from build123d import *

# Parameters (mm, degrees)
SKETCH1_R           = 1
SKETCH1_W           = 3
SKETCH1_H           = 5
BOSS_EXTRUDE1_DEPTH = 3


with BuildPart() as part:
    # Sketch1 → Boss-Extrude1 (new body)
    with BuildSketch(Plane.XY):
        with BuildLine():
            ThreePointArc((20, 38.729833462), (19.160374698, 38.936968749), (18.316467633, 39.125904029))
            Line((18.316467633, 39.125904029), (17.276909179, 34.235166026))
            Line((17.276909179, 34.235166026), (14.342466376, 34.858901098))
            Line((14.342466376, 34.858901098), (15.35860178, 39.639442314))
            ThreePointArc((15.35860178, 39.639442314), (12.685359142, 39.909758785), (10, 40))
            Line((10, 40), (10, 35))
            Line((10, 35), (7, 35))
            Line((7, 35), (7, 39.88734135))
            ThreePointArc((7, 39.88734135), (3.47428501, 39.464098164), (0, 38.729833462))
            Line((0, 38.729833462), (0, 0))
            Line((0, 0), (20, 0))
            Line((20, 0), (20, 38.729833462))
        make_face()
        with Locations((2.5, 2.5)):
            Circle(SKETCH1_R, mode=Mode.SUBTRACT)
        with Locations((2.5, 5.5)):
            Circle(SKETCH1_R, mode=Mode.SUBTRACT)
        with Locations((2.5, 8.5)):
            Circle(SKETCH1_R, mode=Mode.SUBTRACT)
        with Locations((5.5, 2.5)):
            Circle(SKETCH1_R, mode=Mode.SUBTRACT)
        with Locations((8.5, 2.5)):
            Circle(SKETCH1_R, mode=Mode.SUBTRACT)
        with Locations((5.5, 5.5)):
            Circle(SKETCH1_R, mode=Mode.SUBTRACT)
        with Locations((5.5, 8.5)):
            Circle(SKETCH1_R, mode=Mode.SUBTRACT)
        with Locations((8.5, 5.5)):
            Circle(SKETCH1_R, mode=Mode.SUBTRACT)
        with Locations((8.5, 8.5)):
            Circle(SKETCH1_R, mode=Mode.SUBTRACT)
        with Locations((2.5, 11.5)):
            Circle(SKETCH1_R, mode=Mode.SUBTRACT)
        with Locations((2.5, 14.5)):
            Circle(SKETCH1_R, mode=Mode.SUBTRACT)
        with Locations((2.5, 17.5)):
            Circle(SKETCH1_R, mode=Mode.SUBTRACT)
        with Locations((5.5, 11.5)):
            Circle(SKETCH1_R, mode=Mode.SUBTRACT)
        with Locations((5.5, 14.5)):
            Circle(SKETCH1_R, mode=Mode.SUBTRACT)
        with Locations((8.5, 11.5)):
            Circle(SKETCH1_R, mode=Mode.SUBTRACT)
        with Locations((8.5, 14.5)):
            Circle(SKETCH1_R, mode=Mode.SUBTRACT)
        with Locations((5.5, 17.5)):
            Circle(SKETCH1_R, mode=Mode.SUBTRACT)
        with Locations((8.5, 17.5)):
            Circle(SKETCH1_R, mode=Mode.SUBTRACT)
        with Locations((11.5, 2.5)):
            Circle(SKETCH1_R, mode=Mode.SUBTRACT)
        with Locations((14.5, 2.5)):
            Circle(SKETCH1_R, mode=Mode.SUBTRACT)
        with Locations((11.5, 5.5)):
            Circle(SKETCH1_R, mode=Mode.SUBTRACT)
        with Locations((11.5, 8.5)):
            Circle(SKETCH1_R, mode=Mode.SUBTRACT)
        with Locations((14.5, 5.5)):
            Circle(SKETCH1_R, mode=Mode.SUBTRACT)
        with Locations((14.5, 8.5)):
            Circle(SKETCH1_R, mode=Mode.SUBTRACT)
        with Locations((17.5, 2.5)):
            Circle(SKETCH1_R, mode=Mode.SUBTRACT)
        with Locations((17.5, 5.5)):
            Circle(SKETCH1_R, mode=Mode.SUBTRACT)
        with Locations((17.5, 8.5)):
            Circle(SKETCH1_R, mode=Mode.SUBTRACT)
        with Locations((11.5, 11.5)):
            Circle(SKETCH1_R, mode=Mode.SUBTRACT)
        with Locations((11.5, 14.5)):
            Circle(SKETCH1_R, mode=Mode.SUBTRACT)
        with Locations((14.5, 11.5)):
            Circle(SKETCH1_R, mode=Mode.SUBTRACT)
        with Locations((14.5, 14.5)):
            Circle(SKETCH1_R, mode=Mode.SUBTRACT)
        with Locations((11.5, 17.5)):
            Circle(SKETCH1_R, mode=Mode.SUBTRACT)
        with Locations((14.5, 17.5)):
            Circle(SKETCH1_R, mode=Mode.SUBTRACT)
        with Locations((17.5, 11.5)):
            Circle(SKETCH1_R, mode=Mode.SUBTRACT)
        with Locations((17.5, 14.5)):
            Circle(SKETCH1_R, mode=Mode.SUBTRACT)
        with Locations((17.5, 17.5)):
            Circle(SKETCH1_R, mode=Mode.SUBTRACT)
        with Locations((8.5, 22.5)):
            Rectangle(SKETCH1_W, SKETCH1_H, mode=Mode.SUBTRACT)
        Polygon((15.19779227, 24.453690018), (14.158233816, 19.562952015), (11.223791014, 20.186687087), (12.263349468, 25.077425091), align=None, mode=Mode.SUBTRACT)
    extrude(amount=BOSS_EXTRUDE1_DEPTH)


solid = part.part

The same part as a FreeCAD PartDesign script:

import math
import FreeCAD as App
import Part
import Sketcher

V = App.Vector
Q = App.Units.Quantity

doc = App.newDocument("Part")
params = doc.addObject("Spreadsheet::Sheet", "Params")
for row, (alias, value) in enumerate([
    ("sketch1_diameter", "2 mm"),
    ("sketch1_radius", "40.000001 mm"),
    ("sketch1_width", "3 mm"),
    ("sketch1_width2", "20 mm"),
    ("sketch1_height", "5 mm"),
    ("pad1_length", "3 mm"),
], start=1):
    params.set(f"A{row}", alias)
    params.set(f"B{row}", "=" + value)
    params.setAlias(f"B{row}", alias)

body = doc.addObject("PartDesign::Body", "Body")

sketch1 = doc.addObject("Sketcher::SketchObject", "Sketch")
body.addObject(sketch1)
sketch1.AttachmentSupport = (doc.XY_Plane, [""])
sketch1.MapMode = "FlatFace"
sketch1.addGeometry(Part.ArcOfCircle(Part.Circle(V(10, 0, 0), V(0, 0, 1), 40), math.radians(75.52), math.radians(78)), False)
sketch1.addGeometry(Part.LineSegment(V(18.3, 39.1, 0), V(17.3, 34.2, 0)), False)
sketch1.addGeometry(Part.LineSegment(V(17.3, 34.2, 0), V(14.3, 34.9, 0)), False)
sketch1.addGeometry(Part.LineSegment(V(14.3, 34.9, 0), V(15.4, 39.6, 0)), False)
sketch1.addGeometry(Part.ArcOfCircle(Part.Circle(V(10, 0, 0), V(0, 0, 1), 40), math.radians(82.3), math.radians(90)), False)
sketch1.addGeometry(Part.LineSegment(V(10, 40, 0), V(10, 35, 0)), False)
sketch1.addGeometry(Part.LineSegment(V(10, 35, 0), V(7, 35, 0)), False)
sketch1.addGeometry(Part.LineSegment(V(7, 35, 0), V(7, 39.9, 0)), False)
sketch1.addGeometry(Part.ArcOfCircle(Part.Circle(V(10, 0, 0), V(0, 0, 1), 40), math.radians(94.3), math.radians(104.48)), False)
sketch1.addGeometry(Part.LineSegment(V(0, 38.7, 0), V(0, 0, 0)), False)
sketch1.addGeometry(Part.LineSegment(V(0, 0, 0), V(20, 0, 0)), False)
sketch1.addGeometry(Part.LineSegment(V(20, 0, 0), V(20, 38.7, 0)), False)
sketch1.addGeometry(Part.Circle(V(2.5, 2.5, 0), V(0, 0, 1), 1), False)
sketch1.addGeometry(Part.Circle(V(5.5, 2.5, 0), V(0, 0, 1), 1), False)
sketch1.addGeometry(Part.Circle(V(2.5, 5.5, 0), V(0, 0, 1), 1), False)
sketch1.addGeometry(Part.Circle(V(5.5, 5.5, 0), V(0, 0, 1), 1), False)
sketch1.addGeometry(Part.Circle(V(8.5, 2.5, 0), V(0, 0, 1), 1), False)
sketch1.addGeometry(Part.Circle(V(8.5, 5.5, 0), V(0, 0, 1), 1), False)
sketch1.addGeometry(Part.Circle(V(2.5, 8.5, 0), V(0, 0, 1), 1), False)
sketch1.addGeometry(Part.Circle(V(5.5, 8.5, 0), V(0, 0, 1), 1), False)
sketch1.addGeometry(Part.Circle(V(2.5, 11.5, 0), V(0, 0, 1), 1), False)
sketch1.addGeometry(Part.Circle(V(5.5, 11.5, 0), V(0, 0, 1), 1), False)
sketch1.addGeometry(Part.Circle(V(8.5, 8.5, 0), V(0, 0, 1), 1), False)
sketch1.addGeometry(Part.Circle(V(8.5, 11.5, 0), V(0, 0, 1), 1), False)
sketch1.addGeometry(Part.Circle(V(11.5, 2.5, 0), V(0, 0, 1), 1), False)
sketch1.addGeometry(Part.Circle(V(11.5, 5.5, 0), V(0, 0, 1), 1), False)
sketch1.addGeometry(Part.Circle(V(14.5, 2.5, 0), V(0, 0, 1), 1), False)
sketch1.addGeometry(Part.Circle(V(17.5, 2.5, 0), V(0, 0, 1), 1), False)
sketch1.addGeometry(Part.Circle(V(14.5, 5.5, 0), V(0, 0, 1), 1), False)
sketch1.addGeometry(Part.Circle(V(17.5, 5.5, 0), V(0, 0, 1), 1), False)
sketch1.addGeometry(Part.Circle(V(11.5, 8.5, 0), V(0, 0, 1), 1), False)
sketch1.addGeometry(Part.Circle(V(11.5, 11.5, 0), V(0, 0, 1), 1), False)
sketch1.addGeometry(Part.Circle(V(14.5, 8.5, 0), V(0, 0, 1), 1), False)
sketch1.addGeometry(Part.Circle(V(17.5, 8.5, 0), V(0, 0, 1), 1), False)
sketch1.addGeometry(Part.Circle(V(14.5, 11.5, 0), V(0, 0, 1), 1), False)
sketch1.addGeometry(Part.Circle(V(17.5, 11.5, 0), V(0, 0, 1), 1), False)
sketch1.addGeometry(Part.Circle(V(2.5, 14.5, 0), V(0, 0, 1), 1), False)
sketch1.addGeometry(Part.Circle(V(5.5, 14.5, 0), V(0, 0, 1), 1), False)
sketch1.addGeometry(Part.Circle(V(2.5, 17.5, 0), V(0, 0, 1), 1), False)
sketch1.addGeometry(Part.Circle(V(5.5, 17.5, 0), V(0, 0, 1), 1), False)
sketch1.addGeometry(Part.Circle(V(8.5, 14.5, 0), V(0, 0, 1), 1), False)
sketch1.addGeometry(Part.Circle(V(8.5, 17.5, 0), V(0, 0, 1), 1), False)
sketch1.addGeometry(Part.LineSegment(V(10, 20, 0), V(7, 20, 0)), False)
sketch1.addGeometry(Part.LineSegment(V(7, 20, 0), V(7, 25, 0)), False)
sketch1.addGeometry(Part.LineSegment(V(7, 25, 0), V(10, 25, 0)), False)
sketch1.addGeometry(Part.LineSegment(V(10, 25, 0), V(10, 20, 0)), False)
sketch1.addGeometry(Part.Circle(V(11.5, 14.5, 0), V(0, 0, 1), 1), False)
sketch1.addGeometry(Part.Circle(V(11.5, 17.5, 0), V(0, 0, 1), 1), False)
sketch1.addGeometry(Part.Circle(V(14.5, 14.5, 0), V(0, 0, 1), 1), False)
sketch1.addGeometry(Part.Circle(V(17.5, 14.5, 0), V(0, 0, 1), 1), False)
sketch1.addGeometry(Part.Circle(V(14.5, 17.5, 0), V(0, 0, 1), 1), False)
sketch1.addGeometry(Part.Circle(V(17.5, 17.5, 0), V(0, 0, 1), 1), False)
sketch1.addGeometry(Part.LineSegment(V(12.3, 25.1, 0), V(15.2, 24.5, 0)), False)
sketch1.addGeometry(Part.LineSegment(V(15.2, 24.5, 0), V(14.2, 19.6, 0)), False)
sketch1.addGeometry(Part.LineSegment(V(14.2, 19.6, 0), V(11.2, 20.2, 0)), False)
sketch1.addGeometry(Part.LineSegment(V(11.2, 20.2, 0), V(12.3, 25.1, 0)), False)
sketch1.addConstraint(Sketcher.Constraint("Coincident", 0, 2, 1, 1))
sketch1.addConstraint(Sketcher.Constraint("Coincident", 1, 2, 2, 1))
sketch1.addConstraint(Sketcher.Constraint("Coincident", 2, 2, 3, 1))
sketch1.addConstraint(Sketcher.Constraint("Coincident", 3, 2, 4, 1))
sketch1.addConstraint(Sketcher.Constraint("Coincident", 4, 2, 5, 1))
sketch1.addConstraint(Sketcher.Constraint("Coincident", 5, 2, 6, 1))
sketch1.addConstraint(Sketcher.Constraint("Coincident", 6, 2, 7, 1))
sketch1.addConstraint(Sketcher.Constraint("Coincident", 7, 2, 8, 1))
sketch1.addConstraint(Sketcher.Constraint("Coincident", 8, 2, 9, 1))
sketch1.addConstraint(Sketcher.Constraint("Coincident", 9, 2, 10, 1))
sketch1.addConstraint(Sketcher.Constraint("Coincident", 10, 2, 11, 1))
sketch1.addConstraint(Sketcher.Constraint("Coincident", 11, 2, 0, 1))
sketch1.addConstraint(Sketcher.Constraint("Coincident", 42, 2, 43, 1))
sketch1.addConstraint(Sketcher.Constraint("Coincident", 43, 2, 44, 1))
sketch1.addConstraint(Sketcher.Constraint("Coincident", 44, 2, 45, 1))
sketch1.addConstraint(Sketcher.Constraint("Coincident", 45, 2, 42, 1))
sketch1.addConstraint(Sketcher.Constraint("Coincident", 52, 2, 53, 1))
sketch1.addConstraint(Sketcher.Constraint("Coincident", 53, 2, 54, 1))
sketch1.addConstraint(Sketcher.Constraint("Coincident", 54, 2, 55, 1))
sketch1.addConstraint(Sketcher.Constraint("Coincident", 55, 2, 52, 1))
sketch1.addConstraint(Sketcher.Constraint("Vertical", 5))
sketch1.addConstraint(Sketcher.Constraint("Horizontal", 6))
sketch1.addConstraint(Sketcher.Constraint("Vertical", 7))
sketch1.addConstraint(Sketcher.Constraint("Vertical", 9))
sketch1.addConstraint(Sketcher.Constraint("Horizontal", 10))
sketch1.addConstraint(Sketcher.Constraint("Vertical", 11))
sketch1.addConstraint(Sketcher.Constraint("Horizontal", 42))
sketch1.addConstraint(Sketcher.Constraint("Vertical", 43))
sketch1.addConstraint(Sketcher.Constraint("Horizontal", 44))
sketch1.addConstraint(Sketcher.Constraint("Vertical", 45))
sketch1.addConstraint(Sketcher.Constraint("Coincident", 9, 2, -1, 1))
sketch1.addConstraint(Sketcher.Constraint("Coincident", 4, 3, 0, 3))
sketch1.addConstraint(Sketcher.Constraint("Coincident", 8, 3, 0, 3))
sketch1.addConstraint(Sketcher.Constraint("Equal", 0, 4))
sketch1.addConstraint(Sketcher.Constraint("Equal", 4, 8))
sketch1.addConstraint(Sketcher.Constraint("Equal", 12, 13))
sketch1.addConstraint(Sketcher.Constraint("Equal", 13, 14))
sketch1.addConstraint(Sketcher.Constraint("Equal", 14, 15))
sketch1.addConstraint(Sketcher.Constraint("Equal", 15, 16))
sketch1.addConstraint(Sketcher.Constraint("Equal", 16, 17))
sketch1.addConstraint(Sketcher.Constraint("Equal", 17, 18))
sketch1.addConstraint(Sketcher.Constraint("Equal", 18, 19))
sketch1.addConstraint(Sketcher.Constraint("Equal", 19, 20))
sketch1.addConstraint(Sketcher.Constraint("Equal", 20, 21))
sketch1.addConstraint(Sketcher.Constraint("Equal", 21, 22))
sketch1.addConstraint(Sketcher.Constraint("Equal", 22, 23))
sketch1.addConstraint(Sketcher.Constraint("Equal", 23, 24))
sketch1.addConstraint(Sketcher.Constraint("Equal", 24, 25))
sketch1.addConstraint(Sketcher.Constraint("Equal", 25, 26))
sketch1.addConstraint(Sketcher.Constraint("Equal", 26, 27))
sketch1.addConstraint(Sketcher.Constraint("Equal", 27, 28))
sketch1.addConstraint(Sketcher.Constraint("Equal", 28, 29))
sketch1.addConstraint(Sketcher.Constraint("Equal", 29, 30))
sketch1.addConstraint(Sketcher.Constraint("Equal", 30, 31))
sketch1.addConstraint(Sketcher.Constraint("Equal", 31, 32))
sketch1.addConstraint(Sketcher.Constraint("Equal", 32, 33))
sketch1.addConstraint(Sketcher.Constraint("Equal", 33, 34))
sketch1.addConstraint(Sketcher.Constraint("Equal", 34, 35))
sketch1.addConstraint(Sketcher.Constraint("Equal", 35, 36))
sketch1.addConstraint(Sketcher.Constraint("Equal", 36, 37))
sketch1.addConstraint(Sketcher.Constraint("Equal", 37, 38))
sketch1.addConstraint(Sketcher.Constraint("Equal", 38, 39))
sketch1.addConstraint(Sketcher.Constraint("Equal", 39, 40))
sketch1.addConstraint(Sketcher.Constraint("Equal", 40, 41))
sketch1.addConstraint(Sketcher.Constraint("Equal", 41, 46))
sketch1.addConstraint(Sketcher.Constraint("Equal", 46, 47))
sketch1.addConstraint(Sketcher.Constraint("Equal", 47, 48))
sketch1.addConstraint(Sketcher.Constraint("Equal", 48, 49))
sketch1.addConstraint(Sketcher.Constraint("Equal", 49, 50))
sketch1.addConstraint(Sketcher.Constraint("Equal", 50, 51))
sketch1.addConstraint(Sketcher.Constraint("PointOnObject", 0, 3, -1))
sketch1.addConstraint(Sketcher.Constraint("Perpendicular", 1, 2))
sketch1.addConstraint(Sketcher.Constraint("Perpendicular", 2, 3))
sketch1.addConstraint(Sketcher.Constraint("Perpendicular", 3, 52))
sketch1.addConstraint(Sketcher.Constraint("Perpendicular", 52, 53))
sketch1.addConstraint(Sketcher.Constraint("Perpendicular", 53, 54))
sketch1.addConstraint(Sketcher.Constraint("Perpendicular", 54, 55))
sketch1.addConstraint(Sketcher.Constraint("Horizontal", 12, 3, 13, 3))
sketch1.addConstraint(Sketcher.Constraint("Horizontal", 14, 3, 15, 3))
sketch1.addConstraint(Sketcher.Constraint("Horizontal", 13, 3, 16, 3))
sketch1.addConstraint(Sketcher.Constraint("Horizontal", 15, 3, 17, 3))
sketch1.addConstraint(Sketcher.Constraint("Horizontal", 18, 3, 19, 3))
sketch1.addConstraint(Sketcher.Constraint("Horizontal", 20, 3, 21, 3))
sketch1.addConstraint(Sketcher.Constraint("Horizontal", 19, 3, 22, 3))
sketch1.addConstraint(Sketcher.Constraint("Horizontal", 21, 3, 23, 3))
sketch1.addConstraint(Sketcher.Constraint("Horizontal", 16, 3, 24, 3))
sketch1.addConstraint(Sketcher.Constraint("Horizontal", 17, 3, 25, 3))
sketch1.addConstraint(Sketcher.Constraint("Horizontal", 24, 3, 26, 3))
sketch1.addConstraint(Sketcher.Constraint("Horizontal", 26, 3, 27, 3))
sketch1.addConstraint(Sketcher.Constraint("Horizontal", 25, 3, 28, 3))
sketch1.addConstraint(Sketcher.Constraint("Horizontal", 28, 3, 29, 3))
sketch1.addConstraint(Sketcher.Constraint("Horizontal", 22, 3, 30, 3))
sketch1.addConstraint(Sketcher.Constraint("Horizontal", 23, 3, 31, 3))
sketch1.addConstraint(Sketcher.Constraint("Horizontal", 30, 3, 32, 3))
sketch1.addConstraint(Sketcher.Constraint("Horizontal", 32, 3, 33, 3))
sketch1.addConstraint(Sketcher.Constraint("Horizontal", 31, 3, 34, 3))
sketch1.addConstraint(Sketcher.Constraint("Horizontal", 34, 3, 35, 3))
sketch1.addConstraint(Sketcher.Constraint("Horizontal", 36, 3, 37, 3))
sketch1.addConstraint(Sketcher.Constraint("Horizontal", 38, 3, 39, 3))
sketch1.addConstraint(Sketcher.Constraint("Horizontal", 37, 3, 40, 3))
sketch1.addConstraint(Sketcher.Constraint("Horizontal", 39, 3, 41, 3))
sketch1.addConstraint(Sketcher.Constraint("Horizontal", 40, 3, 46, 3))
sketch1.addConstraint(Sketcher.Constraint("Horizontal", 41, 3, 47, 3))
sketch1.addConstraint(Sketcher.Constraint("Horizontal", 46, 3, 48, 3))
sketch1.addConstraint(Sketcher.Constraint("Horizontal", 48, 3, 49, 3))
sketch1.addConstraint(Sketcher.Constraint("Horizontal", 47, 3, 50, 3))
sketch1.addConstraint(Sketcher.Constraint("Horizontal", 50, 3, 51, 3))
sketch1.addConstraint(Sketcher.Constraint("Horizontal", 8, 2, 11, 2))
sketch1.addConstraint(Sketcher.Constraint("Vertical", 12, 3, 14, 3))
sketch1.addConstraint(Sketcher.Constraint("Vertical", 13, 3, 15, 3))
sketch1.addConstraint(Sketcher.Constraint("Vertical", 16, 3, 17, 3))
sketch1.addConstraint(Sketcher.Constraint("Vertical", 14, 3, 18, 3))
sketch1.addConstraint(Sketcher.Constraint("Vertical", 15, 3, 19, 3))
sketch1.addConstraint(Sketcher.Constraint("Vertical", 18, 3, 20, 3))
sketch1.addConstraint(Sketcher.Constraint("Vertical", 19, 3, 21, 3))
sketch1.addConstraint(Sketcher.Constraint("Vertical", 17, 3, 22, 3))
sketch1.addConstraint(Sketcher.Constraint("Vertical", 22, 3, 23, 3))
sketch1.addConstraint(Sketcher.Constraint("Vertical", 24, 3, 25, 3))
sketch1.addConstraint(Sketcher.Constraint("Vertical", 26, 3, 28, 3))
sketch1.addConstraint(Sketcher.Constraint("Vertical", 27, 3, 29, 3))
sketch1.addConstraint(Sketcher.Constraint("Vertical", 25, 3, 30, 3))
sketch1.addConstraint(Sketcher.Constraint("Vertical", 30, 3, 31, 3))
sketch1.addConstraint(Sketcher.Constraint("Vertical", 28, 3, 32, 3))
sketch1.addConstraint(Sketcher.Constraint("Vertical", 29, 3, 33, 3))
sketch1.addConstraint(Sketcher.Constraint("Vertical", 32, 3, 34, 3))
sketch1.addConstraint(Sketcher.Constraint("Vertical", 33, 3, 35, 3))
sketch1.addConstraint(Sketcher.Constraint("Vertical", 20, 3, 36, 3))
sketch1.addConstraint(Sketcher.Constraint("Vertical", 21, 3, 37, 3))
sketch1.addConstraint(Sketcher.Constraint("Vertical", 36, 3, 38, 3))
sketch1.addConstraint(Sketcher.Constraint("Vertical", 37, 3, 39, 3))
sketch1.addConstraint(Sketcher.Constraint("Vertical", 23, 3, 40, 3))
sketch1.addConstraint(Sketcher.Constraint("Vertical", 40, 3, 41, 3))
sketch1.addConstraint(Sketcher.Constraint("Vertical", 31, 3, 46, 3))
sketch1.addConstraint(Sketcher.Constraint("Vertical", 46, 3, 47, 3))
sketch1.addConstraint(Sketcher.Constraint("Vertical", 34, 3, 48, 3))
sketch1.addConstraint(Sketcher.Constraint("Vertical", 35, 3, 49, 3))
sketch1.addConstraint(Sketcher.Constraint("Vertical", 48, 3, 50, 3))
sketch1.addConstraint(Sketcher.Constraint("Vertical", 49, 3, 51, 3))
sketch1.addConstraint(Sketcher.Constraint("Vertical", 8, 3, 4, 2))
sketch1.addConstraint(Sketcher.Constraint("Vertical", 7, 2, 42, 2))
sketch1.addConstraint(Sketcher.Constraint("Vertical", 5, 2, 44, 2))
sketch1.addConstraint(Sketcher.Constraint("Equal", 5, 43))
sketch1.addConstraint(Sketcher.Constraint("Equal", 2, 52))
sketch1.addConstraint(Sketcher.Constraint("Equal", 1, 53))
sketch1.addConstraint(Sketcher.Constraint("Diameter", 12, Q("2 mm")))
sketch1.addConstraint(Sketcher.Constraint("Radius", 0, Q("40.000001 mm")))
sketch1.addConstraint(Sketcher.Constraint("DistanceX", 6, 2, 6, 1, Q("3 mm")))
sketch1.addConstraint(Sketcher.Constraint("DistanceX", 10, 1, 10, 2, Q("20 mm")))
sketch1.addConstraint(Sketcher.Constraint("DistanceY", 5, 2, 5, 1, Q("5 mm")))
sketch1.addConstraint(Sketcher.Constraint("Angle", 1, Q("-102 deg")))
sketch1.addConstraint(Sketcher.Constraint("Distance", 1, Q("5 mm")))
sketch1.addConstraint(Sketcher.Constraint("Distance", 2, Q("3 mm")))
sketch1.addConstraint(Sketcher.Constraint("DistanceY", -1, 1, 42, 2, Q("20 mm")))
sketch1.addConstraint(Sketcher.Constraint("DistanceX", 12, 3, 13, 3, Q("3 mm")))
sketch1.addConstraint(Sketcher.Constraint("DistanceY", 12, 3, 14, 3, Q("3 mm")))
sketch1.addConstraint(Sketcher.Constraint("DistanceX", 13, 3, 16, 3, Q("3 mm")))
sketch1.addConstraint(Sketcher.Constraint("DistanceY", 14, 3, 18, 3, Q("3 mm")))
sketch1.addConstraint(Sketcher.Constraint("DistanceY", 18, 3, 20, 3, Q("3 mm")))
sketch1.addConstraint(Sketcher.Constraint("DistanceX", 16, 3, 24, 3, Q("3 mm")))
sketch1.addConstraint(Sketcher.Constraint("DistanceX", 24, 3, 26, 3, Q("3 mm")))
sketch1.addConstraint(Sketcher.Constraint("DistanceX", 26, 3, 27, 3, Q("3 mm")))
sketch1.addConstraint(Sketcher.Constraint("DistanceY", 20, 3, 36, 3, Q("3 mm")))
sketch1.addConstraint(Sketcher.Constraint("DistanceY", 36, 3, 38, 3, Q("3 mm")))
sketch1.addConstraint(Sketcher.Constraint("DistanceX", -1, 1, 12, 3, Q("2.5 mm")))
sketch1.addConstraint(Sketcher.Constraint("DistanceY", -1, 1, 12, 3, Q("2.5 mm")))
sketch1.addConstraint(Sketcher.Constraint("DistanceY", -1, 1, 2, 2, Q("34.858901 mm")))
sketch1.addConstraint(Sketcher.Constraint("DistanceY", -1, 1, 52, 2, Q("24.45369 mm")))
sketch1.addConstraint(Sketcher.Constraint("DistanceX", -1, 1, 54, 2, Q("11.223791 mm")))
sketch1.setExpression("Constraints[144]", "Params.sketch1_diameter")
sketch1.setExpression("Constraints[145]", "Params.sketch1_radius")
sketch1.setExpression("Constraints[146]", "Params.sketch1_width")
sketch1.setExpression("Constraints[147]", "Params.sketch1_width2")
sketch1.setExpression("Constraints[148]", "Params.sketch1_height")
pad1 = doc.addObject("PartDesign::Pad", "Pad")
body.addObject(pad1)
pad1.Profile = sketch1
pad1.setExpression("Length", "Params.pad1_length")

doc.recompute()
